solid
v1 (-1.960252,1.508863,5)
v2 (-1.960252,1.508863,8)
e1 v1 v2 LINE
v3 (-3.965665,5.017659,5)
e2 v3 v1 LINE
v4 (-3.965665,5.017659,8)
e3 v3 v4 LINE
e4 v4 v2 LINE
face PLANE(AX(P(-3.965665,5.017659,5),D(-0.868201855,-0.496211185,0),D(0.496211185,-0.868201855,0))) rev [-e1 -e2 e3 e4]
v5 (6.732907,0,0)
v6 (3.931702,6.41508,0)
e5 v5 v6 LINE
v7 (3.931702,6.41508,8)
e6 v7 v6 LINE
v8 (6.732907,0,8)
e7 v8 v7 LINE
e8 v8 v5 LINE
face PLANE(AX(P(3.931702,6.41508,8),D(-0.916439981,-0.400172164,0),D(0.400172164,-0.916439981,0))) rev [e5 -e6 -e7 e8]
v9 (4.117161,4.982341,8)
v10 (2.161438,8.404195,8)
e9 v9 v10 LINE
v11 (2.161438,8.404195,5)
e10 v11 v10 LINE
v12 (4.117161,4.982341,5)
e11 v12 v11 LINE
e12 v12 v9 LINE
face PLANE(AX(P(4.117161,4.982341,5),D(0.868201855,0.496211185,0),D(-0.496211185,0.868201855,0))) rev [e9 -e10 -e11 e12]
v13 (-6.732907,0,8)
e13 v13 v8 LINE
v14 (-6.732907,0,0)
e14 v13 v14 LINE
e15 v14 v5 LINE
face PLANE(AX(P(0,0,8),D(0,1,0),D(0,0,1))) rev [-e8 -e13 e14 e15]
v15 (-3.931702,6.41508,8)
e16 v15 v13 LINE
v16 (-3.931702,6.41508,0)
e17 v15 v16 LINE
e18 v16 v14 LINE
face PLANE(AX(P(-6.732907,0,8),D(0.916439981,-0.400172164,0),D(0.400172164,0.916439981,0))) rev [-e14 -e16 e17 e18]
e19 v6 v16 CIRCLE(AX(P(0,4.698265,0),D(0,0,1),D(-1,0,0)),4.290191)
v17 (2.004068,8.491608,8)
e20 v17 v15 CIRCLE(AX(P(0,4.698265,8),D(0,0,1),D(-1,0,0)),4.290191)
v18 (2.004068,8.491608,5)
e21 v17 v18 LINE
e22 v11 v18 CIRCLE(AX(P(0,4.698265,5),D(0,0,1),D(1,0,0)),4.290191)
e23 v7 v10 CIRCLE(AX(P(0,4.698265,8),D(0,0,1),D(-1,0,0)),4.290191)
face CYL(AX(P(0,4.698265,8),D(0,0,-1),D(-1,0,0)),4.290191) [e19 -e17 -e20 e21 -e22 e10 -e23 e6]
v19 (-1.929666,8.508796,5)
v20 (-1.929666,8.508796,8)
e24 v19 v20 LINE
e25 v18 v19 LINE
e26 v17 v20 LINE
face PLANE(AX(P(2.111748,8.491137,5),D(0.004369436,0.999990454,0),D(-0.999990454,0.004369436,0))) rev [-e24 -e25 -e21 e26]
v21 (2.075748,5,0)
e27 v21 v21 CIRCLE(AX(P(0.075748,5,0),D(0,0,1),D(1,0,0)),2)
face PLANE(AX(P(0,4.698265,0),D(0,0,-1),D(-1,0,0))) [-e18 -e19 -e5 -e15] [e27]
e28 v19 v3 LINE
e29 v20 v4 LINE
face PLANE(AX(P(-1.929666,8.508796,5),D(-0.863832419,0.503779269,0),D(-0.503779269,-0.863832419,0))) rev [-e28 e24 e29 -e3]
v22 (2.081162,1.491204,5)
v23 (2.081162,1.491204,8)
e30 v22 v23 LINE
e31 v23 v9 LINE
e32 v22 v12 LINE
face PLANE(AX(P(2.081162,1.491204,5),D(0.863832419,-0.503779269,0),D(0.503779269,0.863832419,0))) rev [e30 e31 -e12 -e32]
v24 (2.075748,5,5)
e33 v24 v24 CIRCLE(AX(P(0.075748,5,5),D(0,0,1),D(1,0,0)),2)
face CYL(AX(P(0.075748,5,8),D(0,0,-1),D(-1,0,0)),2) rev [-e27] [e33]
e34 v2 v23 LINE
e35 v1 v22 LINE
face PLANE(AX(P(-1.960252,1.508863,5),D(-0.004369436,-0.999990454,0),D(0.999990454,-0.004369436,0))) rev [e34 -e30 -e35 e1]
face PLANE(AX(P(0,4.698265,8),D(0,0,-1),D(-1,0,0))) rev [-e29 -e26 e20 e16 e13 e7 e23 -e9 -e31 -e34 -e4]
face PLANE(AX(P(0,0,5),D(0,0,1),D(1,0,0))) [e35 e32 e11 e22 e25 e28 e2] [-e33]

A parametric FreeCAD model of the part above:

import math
import FreeCAD as App
import Part
import Sketcher

doc = App.newDocument("Part")
body = doc.addObject("PartDesign::Body", "Body")

# Sketch on XY plane
sketch1 = body.newObject("Sketcher::SketchObject", "Sketch")
sketch1.AttachmentSupport = (doc.getObject("XY_Plane"), [""])
sketch1.MapMode = "FlatFace"
sketch1.addGeometry(Part.LineSegment(App.Vector(-3.931702, 6.41508, 0), App.Vector(-6.732907, 0, 0)), False)
sketch1.addGeometry(Part.LineSegment(App.Vector(-6.732907, 0, 0), App.Vector(6.732907, 0, 0)), False)
sketch1.addGeometry(Part.LineSegment(App.Vector(6.732907, 0, 0), App.Vector(3.931702, 6.41508, 0)), False)
sketch1.addGeometry(Part.ArcOfCircle(Part.Circle(App.Vector(0, 4.698265, 0), App.Vector(0, 0, 1), 4.290191), math.radians(23.588942), math.radians(156.411058)), False)
sketch1.addGeometry(Part.Circle(App.Vector(0.075748, 5, 0), App.Vector(0, 0, 1), 2), False)
sketch1.addConstraint(Sketcher.Constraint("Coincident", 0, 2, 1, 1))
sketch1.addConstraint(Sketcher.Constraint("Coincident", 1, 2, 2, 1))
sketch1.addConstraint(Sketcher.Constraint("Tangent", 2, 2, 3, 1))
sketch1.addConstraint(Sketcher.Constraint("Tangent", 3, 2, 0, 1))
sketch1.addConstraint(Sketcher.Constraint("Horizontal", 1))
sketch1.addConstraint(Sketcher.Constraint("Symmetric", 0, 2, 1, 2, -1, 1))
sketch1.addConstraint(Sketcher.Constraint("PointOnObject", 3, 3, -2))
sketch1.addConstraint(Sketcher.Constraint("Diameter", 4, 4.0))
sketch1.addConstraint(Sketcher.Constraint("Distance", 0, 7.0))
sketch1.addConstraint(Sketcher.Constraint("DistanceY", -1, 1, 4, 3, 5.0))
sketch1.addConstraint(Sketcher.Constraint("Radius", 3, 4.290191))
sketch1.addConstraint(Sketcher.Constraint("DistanceX", 1, 1, 1, 2, 13.465815))
sketch1.addConstraint(Sketcher.Constraint("DistanceX", 4, 3, 1, 2, 6.657159))
pad1 = body.newObject("PartDesign::Pad", "Pad")
pad1.Profile = sketch1
pad1.Length = 8

# Sketch on XY plane
sketch2 = body.newObject("Sketcher::SketchObject", "Sketch001")
sketch2.AttachmentSupport = (doc.getObject("XY_Plane"), [""])
sketch2.MapMode = "FlatFace"
sketch2.AttachmentOffset = App.Placement(App.Vector(0, 0, 8), App.Rotation())
sketch2.addGeometry(Part.LineSegment(App.Vector(-1.960252, 1.508863, 0), App.Vector(2.081162, 1.491204, 0)), False)
sketch2.addGeometry(Part.LineSegment(App.Vector(2.081162, 1.491204, 0), App.Vector(4.117161, 4.982341, 0)), False)
sketch2.addGeometry(Part.LineSegment(App.Vector(4.117161, 4.982341, 0), App.Vector(2.111748, 8.491137, 0)), False)
sketch2.addGeometry(Part.LineSegment(App.Vector(2.111748, 8.491137, 0), App.Vector(-1.929666, 8.508796, 0)), False)
sketch2.addGeometry(Part.LineSegment(App.Vector(-1.929666, 8.508796, 0), App.Vector(-3.965665, 5.017659, 0)), False)
sketch2.addGeometry(Part.LineSegment(App.Vector(-3.965665, 5.017659, 0), App.Vector(-1.960252, 1.508863, 0)), False)
sketch2.addConstraint(Sketcher.Constraint("Coincident", 0, 2, 1, 1))
sketch2.addConstraint(Sketcher.Constraint("Coincident", 1, 2, 2, 1))
sketch2.addConstraint(Sketcher.Constraint("Coincident", 2, 2, 3, 1))
sketch2.addConstraint(Sketcher.Constraint("Coincident", 3, 2, 4, 1))
sketch2.addConstraint(Sketcher.Constraint("Coincident", 4, 2, 5, 1))
sketch2.addConstraint(Sketcher.Constraint("Coincident", 5, 2, 0, 1))
sketch2.addConstraint(Sketcher.Constraint("Parallel", 0, 3))
sketch2.addConstraint(Sketcher.Constraint("Parallel", 1, 4))
sketch2.addConstraint(Sketcher.Constraint("Parallel", 2, 5))
sketch2.addConstraint(Sketcher.Constraint("Equal", 0, 1))
sketch2.addConstraint(Sketcher.Constraint("Equal", 1, 2))
sketch2.addConstraint(Sketcher.Constraint("Equal", 2, 3))
sketch2.addConstraint(Sketcher.Constraint("DistanceX", 0, 2, 1, 2, 2.036))
sketch2.addConstraint(Sketcher.Constraint("DistanceX", 5, 2, 2, 2, 4.071999))
sketch2.addConstraint(Sketcher.Constraint("Distance", 0, 4.041452))
sketch2.addConstraint(Sketcher.Constraint("DistanceX", -1, 1, 0, 2, 2.081162))
sketch2.addConstraint(Sketcher.Constraint("DistanceY", -1, 1, 1, 2, 4.982341))
sketch2.addConstraint(Sketcher.Constraint("DistanceY", -1, 1, 4, 2, 5.017659))
pocket1 = body.newObject("PartDesign::Pocket", "Pocket")
pocket1.Profile = sketch2
pocket1.Length = 3

doc.recompute()
